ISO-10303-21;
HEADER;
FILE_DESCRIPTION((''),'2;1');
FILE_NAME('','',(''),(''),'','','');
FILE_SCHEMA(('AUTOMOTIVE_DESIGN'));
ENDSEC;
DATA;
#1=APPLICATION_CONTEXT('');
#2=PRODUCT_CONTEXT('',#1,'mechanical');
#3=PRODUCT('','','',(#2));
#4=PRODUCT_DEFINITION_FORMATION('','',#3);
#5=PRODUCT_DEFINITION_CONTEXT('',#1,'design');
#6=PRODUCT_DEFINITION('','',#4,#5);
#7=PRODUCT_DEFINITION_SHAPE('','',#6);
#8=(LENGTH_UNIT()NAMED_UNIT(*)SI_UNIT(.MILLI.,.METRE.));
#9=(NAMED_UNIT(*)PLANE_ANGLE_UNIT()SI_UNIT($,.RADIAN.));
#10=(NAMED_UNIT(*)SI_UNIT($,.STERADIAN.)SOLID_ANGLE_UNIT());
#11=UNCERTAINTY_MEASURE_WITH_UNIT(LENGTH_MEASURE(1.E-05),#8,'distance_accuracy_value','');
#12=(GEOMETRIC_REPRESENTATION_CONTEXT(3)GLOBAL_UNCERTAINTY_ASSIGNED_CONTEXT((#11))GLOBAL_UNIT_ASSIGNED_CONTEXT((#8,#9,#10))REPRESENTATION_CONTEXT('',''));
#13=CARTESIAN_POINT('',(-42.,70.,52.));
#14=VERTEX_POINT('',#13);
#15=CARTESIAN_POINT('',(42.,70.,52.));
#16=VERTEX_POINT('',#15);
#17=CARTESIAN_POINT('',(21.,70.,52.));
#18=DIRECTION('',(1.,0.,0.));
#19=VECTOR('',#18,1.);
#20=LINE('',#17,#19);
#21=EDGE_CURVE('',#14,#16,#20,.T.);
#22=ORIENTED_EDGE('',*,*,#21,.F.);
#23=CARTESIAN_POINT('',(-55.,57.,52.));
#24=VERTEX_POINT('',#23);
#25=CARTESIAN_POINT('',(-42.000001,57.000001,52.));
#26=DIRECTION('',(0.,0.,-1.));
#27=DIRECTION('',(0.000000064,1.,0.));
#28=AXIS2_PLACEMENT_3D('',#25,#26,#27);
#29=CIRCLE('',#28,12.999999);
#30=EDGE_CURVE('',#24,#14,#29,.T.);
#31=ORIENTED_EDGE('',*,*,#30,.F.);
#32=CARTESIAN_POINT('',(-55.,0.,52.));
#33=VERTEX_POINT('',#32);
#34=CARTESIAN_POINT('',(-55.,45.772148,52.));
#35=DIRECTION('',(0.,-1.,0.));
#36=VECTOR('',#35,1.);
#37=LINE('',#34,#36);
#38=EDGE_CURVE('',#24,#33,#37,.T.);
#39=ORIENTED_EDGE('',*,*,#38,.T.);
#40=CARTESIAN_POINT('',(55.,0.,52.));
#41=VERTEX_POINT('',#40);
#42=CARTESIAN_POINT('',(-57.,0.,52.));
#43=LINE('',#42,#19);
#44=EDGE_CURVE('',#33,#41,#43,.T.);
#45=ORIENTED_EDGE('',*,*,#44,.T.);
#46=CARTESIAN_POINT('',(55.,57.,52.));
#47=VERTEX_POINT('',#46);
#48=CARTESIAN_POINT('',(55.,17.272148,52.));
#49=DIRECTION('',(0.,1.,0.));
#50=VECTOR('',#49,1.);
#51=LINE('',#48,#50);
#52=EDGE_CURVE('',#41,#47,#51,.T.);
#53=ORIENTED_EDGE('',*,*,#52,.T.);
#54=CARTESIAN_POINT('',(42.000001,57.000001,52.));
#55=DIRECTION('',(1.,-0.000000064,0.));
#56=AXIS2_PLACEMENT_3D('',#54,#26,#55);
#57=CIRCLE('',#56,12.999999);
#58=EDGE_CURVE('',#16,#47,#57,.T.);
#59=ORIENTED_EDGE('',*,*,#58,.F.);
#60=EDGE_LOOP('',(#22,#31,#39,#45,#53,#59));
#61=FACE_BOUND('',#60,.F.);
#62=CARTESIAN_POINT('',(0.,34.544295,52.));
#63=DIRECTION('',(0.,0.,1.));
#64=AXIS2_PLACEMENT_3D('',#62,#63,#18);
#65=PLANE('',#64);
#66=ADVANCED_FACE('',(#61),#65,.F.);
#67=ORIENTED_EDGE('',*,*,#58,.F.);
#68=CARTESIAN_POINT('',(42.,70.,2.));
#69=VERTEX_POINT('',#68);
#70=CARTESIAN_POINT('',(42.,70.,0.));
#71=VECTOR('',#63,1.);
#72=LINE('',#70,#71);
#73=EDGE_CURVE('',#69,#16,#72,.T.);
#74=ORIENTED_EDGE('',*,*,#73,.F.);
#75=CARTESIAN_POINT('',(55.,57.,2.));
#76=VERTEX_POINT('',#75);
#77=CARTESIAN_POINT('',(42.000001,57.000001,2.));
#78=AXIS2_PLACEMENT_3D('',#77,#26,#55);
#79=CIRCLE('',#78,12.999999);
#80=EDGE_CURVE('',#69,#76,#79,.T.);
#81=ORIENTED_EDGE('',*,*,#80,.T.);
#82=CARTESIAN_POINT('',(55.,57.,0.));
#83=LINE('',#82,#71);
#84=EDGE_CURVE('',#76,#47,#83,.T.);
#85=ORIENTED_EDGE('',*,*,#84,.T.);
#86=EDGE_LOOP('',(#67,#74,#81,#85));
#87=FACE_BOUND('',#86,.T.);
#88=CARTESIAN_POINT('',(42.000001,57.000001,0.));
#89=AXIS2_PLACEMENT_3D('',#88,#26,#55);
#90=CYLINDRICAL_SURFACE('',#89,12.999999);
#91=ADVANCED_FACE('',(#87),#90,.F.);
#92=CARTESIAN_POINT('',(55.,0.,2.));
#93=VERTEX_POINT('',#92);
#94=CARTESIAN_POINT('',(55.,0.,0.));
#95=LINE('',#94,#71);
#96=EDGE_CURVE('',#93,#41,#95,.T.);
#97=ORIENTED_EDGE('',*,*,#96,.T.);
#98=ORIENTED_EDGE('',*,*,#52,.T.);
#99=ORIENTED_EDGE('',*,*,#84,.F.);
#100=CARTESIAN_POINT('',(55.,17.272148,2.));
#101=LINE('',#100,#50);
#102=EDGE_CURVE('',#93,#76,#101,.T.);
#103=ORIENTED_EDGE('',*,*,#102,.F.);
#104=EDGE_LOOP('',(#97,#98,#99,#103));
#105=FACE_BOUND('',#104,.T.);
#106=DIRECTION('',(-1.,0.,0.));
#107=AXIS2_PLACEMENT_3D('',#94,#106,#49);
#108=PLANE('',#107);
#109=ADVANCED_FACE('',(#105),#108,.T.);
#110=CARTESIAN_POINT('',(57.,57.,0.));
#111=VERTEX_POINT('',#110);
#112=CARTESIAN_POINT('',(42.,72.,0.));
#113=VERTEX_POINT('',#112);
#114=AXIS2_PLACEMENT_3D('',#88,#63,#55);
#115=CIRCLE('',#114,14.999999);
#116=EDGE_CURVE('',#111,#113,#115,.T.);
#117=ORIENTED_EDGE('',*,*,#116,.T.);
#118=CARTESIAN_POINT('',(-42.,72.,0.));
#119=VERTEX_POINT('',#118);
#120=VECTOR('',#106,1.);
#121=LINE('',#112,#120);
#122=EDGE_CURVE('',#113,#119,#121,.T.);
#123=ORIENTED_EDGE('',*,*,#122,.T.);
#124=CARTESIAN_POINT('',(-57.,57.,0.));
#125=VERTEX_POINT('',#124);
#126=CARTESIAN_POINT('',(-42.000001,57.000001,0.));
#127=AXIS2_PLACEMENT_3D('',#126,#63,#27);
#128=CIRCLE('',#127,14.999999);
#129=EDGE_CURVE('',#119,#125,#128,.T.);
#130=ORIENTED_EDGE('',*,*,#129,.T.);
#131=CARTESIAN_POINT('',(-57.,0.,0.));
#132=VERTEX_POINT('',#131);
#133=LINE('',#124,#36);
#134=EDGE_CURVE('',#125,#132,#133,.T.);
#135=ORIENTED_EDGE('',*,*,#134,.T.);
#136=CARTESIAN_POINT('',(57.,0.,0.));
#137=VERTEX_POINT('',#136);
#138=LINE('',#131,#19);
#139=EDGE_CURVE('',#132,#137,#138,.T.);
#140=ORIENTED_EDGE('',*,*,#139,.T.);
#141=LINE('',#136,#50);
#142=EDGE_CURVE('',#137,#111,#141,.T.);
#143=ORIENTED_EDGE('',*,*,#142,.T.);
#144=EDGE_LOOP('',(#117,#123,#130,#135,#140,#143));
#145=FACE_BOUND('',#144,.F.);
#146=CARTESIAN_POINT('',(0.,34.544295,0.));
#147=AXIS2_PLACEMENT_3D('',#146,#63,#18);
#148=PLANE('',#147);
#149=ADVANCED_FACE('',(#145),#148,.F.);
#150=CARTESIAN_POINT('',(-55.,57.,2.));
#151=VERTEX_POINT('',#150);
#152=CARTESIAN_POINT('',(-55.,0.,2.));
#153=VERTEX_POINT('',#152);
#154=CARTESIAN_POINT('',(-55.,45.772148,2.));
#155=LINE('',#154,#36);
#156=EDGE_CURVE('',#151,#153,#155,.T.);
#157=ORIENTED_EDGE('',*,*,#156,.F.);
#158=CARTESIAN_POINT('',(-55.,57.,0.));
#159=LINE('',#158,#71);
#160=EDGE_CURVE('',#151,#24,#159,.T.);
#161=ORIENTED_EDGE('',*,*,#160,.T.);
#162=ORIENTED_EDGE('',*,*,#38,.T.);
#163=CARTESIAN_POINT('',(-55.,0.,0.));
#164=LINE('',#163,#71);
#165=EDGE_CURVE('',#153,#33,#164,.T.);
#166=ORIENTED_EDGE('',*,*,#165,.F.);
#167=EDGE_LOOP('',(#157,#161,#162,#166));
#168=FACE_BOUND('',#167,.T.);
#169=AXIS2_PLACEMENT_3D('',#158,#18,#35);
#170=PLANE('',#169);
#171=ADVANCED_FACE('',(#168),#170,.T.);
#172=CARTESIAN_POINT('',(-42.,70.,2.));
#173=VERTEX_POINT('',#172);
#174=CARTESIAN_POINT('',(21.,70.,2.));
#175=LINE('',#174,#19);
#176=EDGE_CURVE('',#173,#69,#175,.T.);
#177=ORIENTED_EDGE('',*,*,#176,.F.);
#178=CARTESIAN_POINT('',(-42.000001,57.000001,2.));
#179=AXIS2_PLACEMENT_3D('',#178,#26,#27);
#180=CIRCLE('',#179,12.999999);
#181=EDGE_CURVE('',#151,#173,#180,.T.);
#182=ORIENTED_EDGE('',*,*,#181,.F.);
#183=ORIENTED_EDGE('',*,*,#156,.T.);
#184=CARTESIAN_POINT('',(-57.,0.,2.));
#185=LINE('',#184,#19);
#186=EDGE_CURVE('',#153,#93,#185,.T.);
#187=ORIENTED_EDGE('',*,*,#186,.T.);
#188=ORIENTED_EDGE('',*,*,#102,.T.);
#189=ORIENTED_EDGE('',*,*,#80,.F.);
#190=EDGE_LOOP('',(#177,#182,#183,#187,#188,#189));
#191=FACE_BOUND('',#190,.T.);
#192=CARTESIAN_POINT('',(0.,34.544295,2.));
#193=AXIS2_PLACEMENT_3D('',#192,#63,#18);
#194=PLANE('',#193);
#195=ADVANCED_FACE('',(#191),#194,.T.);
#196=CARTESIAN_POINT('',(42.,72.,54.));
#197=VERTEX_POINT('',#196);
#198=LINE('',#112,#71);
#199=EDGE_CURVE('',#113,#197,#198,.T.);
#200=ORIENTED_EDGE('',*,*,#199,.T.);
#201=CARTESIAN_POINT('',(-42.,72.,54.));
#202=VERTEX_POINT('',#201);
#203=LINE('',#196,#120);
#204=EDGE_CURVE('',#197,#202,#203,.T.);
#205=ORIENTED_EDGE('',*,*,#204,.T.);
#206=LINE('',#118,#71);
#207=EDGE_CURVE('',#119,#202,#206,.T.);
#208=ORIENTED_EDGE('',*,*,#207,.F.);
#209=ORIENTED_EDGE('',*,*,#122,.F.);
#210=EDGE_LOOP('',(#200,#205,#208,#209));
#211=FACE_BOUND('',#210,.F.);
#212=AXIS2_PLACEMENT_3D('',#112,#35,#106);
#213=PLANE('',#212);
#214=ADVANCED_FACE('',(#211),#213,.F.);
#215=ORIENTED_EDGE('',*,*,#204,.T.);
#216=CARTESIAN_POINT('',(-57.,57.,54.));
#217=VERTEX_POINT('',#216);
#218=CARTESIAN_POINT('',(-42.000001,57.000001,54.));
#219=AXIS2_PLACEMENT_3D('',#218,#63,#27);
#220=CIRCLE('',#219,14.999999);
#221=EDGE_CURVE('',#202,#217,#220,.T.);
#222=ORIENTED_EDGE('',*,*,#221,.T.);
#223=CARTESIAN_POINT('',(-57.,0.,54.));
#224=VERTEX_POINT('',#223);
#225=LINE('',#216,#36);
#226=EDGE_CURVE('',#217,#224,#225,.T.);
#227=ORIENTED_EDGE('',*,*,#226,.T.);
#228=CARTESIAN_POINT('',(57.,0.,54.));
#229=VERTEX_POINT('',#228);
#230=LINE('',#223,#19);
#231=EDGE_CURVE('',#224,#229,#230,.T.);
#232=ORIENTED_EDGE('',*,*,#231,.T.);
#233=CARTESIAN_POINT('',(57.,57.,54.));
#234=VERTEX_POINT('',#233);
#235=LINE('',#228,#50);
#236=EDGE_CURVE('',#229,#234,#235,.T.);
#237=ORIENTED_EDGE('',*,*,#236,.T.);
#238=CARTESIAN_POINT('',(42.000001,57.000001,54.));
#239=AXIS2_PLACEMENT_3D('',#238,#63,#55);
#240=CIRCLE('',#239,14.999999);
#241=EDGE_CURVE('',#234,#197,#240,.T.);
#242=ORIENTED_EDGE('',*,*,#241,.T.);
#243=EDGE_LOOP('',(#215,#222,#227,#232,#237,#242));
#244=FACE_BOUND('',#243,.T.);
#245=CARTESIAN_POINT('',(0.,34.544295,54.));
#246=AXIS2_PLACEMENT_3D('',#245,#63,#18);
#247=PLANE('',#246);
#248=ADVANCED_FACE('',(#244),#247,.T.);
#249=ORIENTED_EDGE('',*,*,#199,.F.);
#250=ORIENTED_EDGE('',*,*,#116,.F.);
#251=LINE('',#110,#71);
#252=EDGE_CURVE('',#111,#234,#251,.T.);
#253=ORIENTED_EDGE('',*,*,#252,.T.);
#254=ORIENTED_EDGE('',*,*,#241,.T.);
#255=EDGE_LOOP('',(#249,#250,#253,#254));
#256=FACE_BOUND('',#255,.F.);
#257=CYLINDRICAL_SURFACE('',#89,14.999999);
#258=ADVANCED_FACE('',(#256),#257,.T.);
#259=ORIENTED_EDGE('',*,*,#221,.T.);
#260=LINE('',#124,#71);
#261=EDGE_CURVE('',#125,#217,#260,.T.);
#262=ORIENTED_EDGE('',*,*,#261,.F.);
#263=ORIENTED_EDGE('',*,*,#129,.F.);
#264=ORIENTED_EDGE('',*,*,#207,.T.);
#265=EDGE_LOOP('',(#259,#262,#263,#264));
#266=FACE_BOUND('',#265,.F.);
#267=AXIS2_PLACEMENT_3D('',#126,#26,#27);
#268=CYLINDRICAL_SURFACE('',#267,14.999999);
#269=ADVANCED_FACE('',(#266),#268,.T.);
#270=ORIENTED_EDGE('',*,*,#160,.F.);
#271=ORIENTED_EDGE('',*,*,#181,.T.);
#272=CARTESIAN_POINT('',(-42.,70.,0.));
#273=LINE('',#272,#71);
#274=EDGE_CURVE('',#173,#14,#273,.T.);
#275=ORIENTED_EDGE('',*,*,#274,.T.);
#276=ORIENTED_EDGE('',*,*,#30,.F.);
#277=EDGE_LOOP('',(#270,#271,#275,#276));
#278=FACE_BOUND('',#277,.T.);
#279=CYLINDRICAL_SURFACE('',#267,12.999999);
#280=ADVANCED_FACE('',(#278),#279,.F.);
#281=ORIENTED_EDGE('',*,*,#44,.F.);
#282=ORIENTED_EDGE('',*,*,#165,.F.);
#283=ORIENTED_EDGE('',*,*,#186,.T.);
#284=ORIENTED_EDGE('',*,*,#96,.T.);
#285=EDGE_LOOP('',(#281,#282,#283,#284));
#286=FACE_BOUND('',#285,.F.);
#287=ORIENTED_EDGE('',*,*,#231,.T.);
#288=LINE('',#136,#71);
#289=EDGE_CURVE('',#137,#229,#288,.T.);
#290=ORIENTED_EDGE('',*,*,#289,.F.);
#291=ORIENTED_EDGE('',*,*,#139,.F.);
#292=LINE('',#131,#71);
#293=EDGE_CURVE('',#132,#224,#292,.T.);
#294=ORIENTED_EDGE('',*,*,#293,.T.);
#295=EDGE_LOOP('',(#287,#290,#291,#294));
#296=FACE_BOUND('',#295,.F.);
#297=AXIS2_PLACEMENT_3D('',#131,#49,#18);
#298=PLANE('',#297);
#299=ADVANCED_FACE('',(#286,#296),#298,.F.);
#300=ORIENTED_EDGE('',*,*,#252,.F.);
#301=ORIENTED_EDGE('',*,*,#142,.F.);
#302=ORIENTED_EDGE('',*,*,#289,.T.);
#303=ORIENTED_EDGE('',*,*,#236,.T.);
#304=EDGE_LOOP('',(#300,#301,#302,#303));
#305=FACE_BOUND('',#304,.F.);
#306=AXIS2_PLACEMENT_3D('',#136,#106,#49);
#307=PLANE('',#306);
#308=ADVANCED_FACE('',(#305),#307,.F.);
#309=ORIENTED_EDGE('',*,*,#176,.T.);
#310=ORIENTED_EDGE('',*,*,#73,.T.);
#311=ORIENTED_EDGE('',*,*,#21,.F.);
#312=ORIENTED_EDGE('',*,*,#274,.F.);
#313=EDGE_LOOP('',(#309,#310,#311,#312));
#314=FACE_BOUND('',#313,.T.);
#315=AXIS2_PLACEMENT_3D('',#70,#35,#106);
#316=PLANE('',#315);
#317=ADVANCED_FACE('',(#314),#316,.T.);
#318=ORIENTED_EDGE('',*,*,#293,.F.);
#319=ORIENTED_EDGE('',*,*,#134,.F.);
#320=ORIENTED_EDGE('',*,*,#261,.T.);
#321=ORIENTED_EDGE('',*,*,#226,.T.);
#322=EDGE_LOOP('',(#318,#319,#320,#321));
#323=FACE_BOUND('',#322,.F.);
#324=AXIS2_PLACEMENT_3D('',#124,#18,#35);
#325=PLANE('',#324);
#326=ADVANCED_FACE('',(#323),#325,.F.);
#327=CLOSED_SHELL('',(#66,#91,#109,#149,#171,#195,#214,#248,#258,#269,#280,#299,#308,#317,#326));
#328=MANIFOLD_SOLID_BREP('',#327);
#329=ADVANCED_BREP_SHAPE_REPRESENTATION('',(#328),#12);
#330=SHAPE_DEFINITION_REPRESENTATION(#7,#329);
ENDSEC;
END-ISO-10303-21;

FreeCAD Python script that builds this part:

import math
import FreeCAD as App
import Part
import Sketcher


def faces_at(feature, points):
    """Names of the faces that lie closest to the given points."""
    faces = feature.Shape.Faces
    near = lambda p: min(range(len(faces)), key=lambda i: faces[i].distToShape(Part.Vertex(*p))[0])
    return sorted({f"Face{near(p) + 1}" for p in points})

doc = App.newDocument("Part")
body = doc.addObject("PartDesign::Body", "Body")

# Sketch on XY plane
sketch1 = body.newObject("Sketcher::SketchObject", "Sketch")
sketch1.AttachmentSupport = (doc.getObject("XY_Plane"), [""])
sketch1.MapMode = "FlatFace"
sketch1.addGeometry(Part.LineSegment(App.Vector(-57, 57, 0), App.Vector(-57, 0, 0)), False)
sketch1.addGeometry(Part.LineSegment(App.Vector(-57, 0, 0), App.Vector(57, 0, 0)), False)
sketch1.addGeometry(Part.LineSegment(App.Vector(57, 0, 0), App.Vector(57, 57, 0)), False)
sketch1.addGeometry(Part.ArcOfCircle(Part.Circle(App.Vector(42, 57, 0), App.Vector(0, 0, 1), 15), math.radians(0), math.radians(90)), False)
sketch1.addGeometry(Part.LineSegment(App.Vector(42, 72, 0), App.Vector(-42, 72, 0)), False)
sketch1.addGeometry(Part.ArcOfCircle(Part.Circle(App.Vector(-42, 57, 0), App.Vector(0, 0, 1), 15), math.radians(90), math.radians(180)), False)
sketch1.addConstraint(Sketcher.Constraint("Coincident", 0, 2, 1, 1))
sketch1.addConstraint(Sketcher.Constraint("Coincident", 1, 2, 2, 1))
sketch1.addConstraint(Sketcher.Constraint("Tangent", 2, 2, 3, 1))
sketch1.addConstraint(Sketcher.Constraint("Tangent", 3, 2, 4, 1))
sketch1.addConstraint(Sketcher.Constraint("Tangent", 4, 2, 5, 1))
sketch1.addConstraint(Sketcher.Constraint("Tangent", 5, 2, 0, 1))
sketch1.addConstraint(Sketcher.Constraint("Vertical", 0))
sketch1.addConstraint(Sketcher.Constraint("Horizontal", 1))
sketch1.addConstraint(Sketcher.Constraint("Vertical", 2))
sketch1.addConstraint(Sketcher.Constraint("Horizontal", 4))
sketch1.addConstraint(Sketcher.Constraint("Equal", 3, 5))
sketch1.addConstraint(Sketcher.Constraint("Symmetric", 0, 2, 1, 2, -1, 1))
sketch1.addConstraint(Sketcher.Constraint("Radius", 3, 14.999999))
sketch1.addConstraint(Sketcher.Constraint("DistanceX", 1, 1, 1, 2, 114.0))
sketch1.addConstraint(Sketcher.Constraint("DistanceY", 0, 2, 0, 1, 57.0))
pad1 = body.newObject("PartDesign::Pad", "Pad")
pad1.Profile = sketch1
pad1.Length = 54
doc.recompute()

thickness = body.newObject("PartDesign::Thickness", "Thickness")
thickness.Base = (pad1, faces_at(pad1, [(0, 0, 27)]))
thickness.Value = 2
thickness.Reversed = True
thickness.Join = "Arc"

doc.recompute()
